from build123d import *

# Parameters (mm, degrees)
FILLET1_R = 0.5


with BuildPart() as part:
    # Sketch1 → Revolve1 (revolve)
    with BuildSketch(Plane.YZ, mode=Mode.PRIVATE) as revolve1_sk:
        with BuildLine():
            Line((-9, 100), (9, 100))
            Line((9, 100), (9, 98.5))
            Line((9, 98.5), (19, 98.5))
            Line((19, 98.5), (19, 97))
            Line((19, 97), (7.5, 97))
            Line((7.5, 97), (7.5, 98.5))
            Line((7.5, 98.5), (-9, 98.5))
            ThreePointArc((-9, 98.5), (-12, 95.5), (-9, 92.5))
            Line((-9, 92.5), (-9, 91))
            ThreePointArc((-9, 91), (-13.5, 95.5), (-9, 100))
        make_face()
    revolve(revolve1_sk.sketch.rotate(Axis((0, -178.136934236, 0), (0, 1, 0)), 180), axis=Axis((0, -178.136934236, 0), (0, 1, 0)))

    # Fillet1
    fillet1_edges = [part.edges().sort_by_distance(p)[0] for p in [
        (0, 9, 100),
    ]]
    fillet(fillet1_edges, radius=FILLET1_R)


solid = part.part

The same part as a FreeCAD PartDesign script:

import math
import FreeCAD as App
import Part
import Sketcher
Q = App.Units.Quantity


def edges_at(feature, points):
    """Names of the edges that pass closest to the given points."""
    edges = feature.Shape.Edges
    near = lambda p: min(range(len(edges)), key=lambda i: edges[i].distToShape(Part.Vertex(*p))[0])
    return sorted({f"Edge{near(p) + 1}" for p in points})

doc = App.newDocument("Part")
body = doc.addObject("PartDesign::Body", "Body")

sketch1 = doc.addObject("Sketcher::SketchObject", "Sketch")
body.addObject(sketch1)
sketch1.AttachmentSupport = (doc.YZ_Plane, [""])
sketch1.MapMode = "FlatFace"
sketch1.addGeometry([
    Part.LineSegment(App.Vector(9, 100, 0), App.Vector(-9, 100, 0)),
    Part.ArcOfCircle(Part.Circle(App.Vector(-9, 95.5, 0), App.Vector(0, 0, 1), 4.5), math.radians(90), math.radians(270)),
    Part.LineSegment(App.Vector(-9, 91, 0), App.Vector(-9, 92.5, 0)),
    Part.ArcOfCircle(Part.Circle(App.Vector(-9, 95.5, 0), App.Vector(0, 0, 1), 3), math.radians(90), math.radians(270)),
    Part.LineSegment(App.Vector(-9, 98.5, 0), App.Vector(7.5, 98.5, 0)),
    Part.LineSegment(App.Vector(7.5, 98.5, 0), App.Vector(7.5, 97, 0)),
    Part.LineSegment(App.Vector(7.5, 97, 0), App.Vector(19, 97, 0)),
    Part.LineSegment(App.Vector(19, 97, 0), App.Vector(19, 98.5, 0)),
    Part.LineSegment(App.Vector(19, 98.5, 0), App.Vector(9, 98.5, 0)),
    Part.LineSegment(App.Vector(9, 98.5, 0), App.Vector(9, 100, 0)),
], False)
sketch1.addConstraint([
    Sketcher.Constraint("Tangent", 0, 2, 1, 1),
    Sketcher.Constraint("Coincident", 1, 2, 2, 1),
    Sketcher.Constraint("Coincident", 2, 2, 3, 2),
    Sketcher.Constraint("Tangent", 3, 1, 4, 1),
    Sketcher.Constraint("Coincident", 4, 2, 5, 1),
    Sketcher.Constraint("Coincident", 5, 2, 6, 1),
    Sketcher.Constraint("Coincident", 6, 2, 7, 1),
    Sketcher.Constraint("Coincident", 7, 2, 8, 1),
    Sketcher.Constraint("Coincident", 8, 2, 9, 1),
    Sketcher.Constraint("Coincident", 9, 2, 0, 1),
    Sketcher.Constraint("Horizontal", 0),
    Sketcher.Constraint("Vertical", 2),
    Sketcher.Constraint("Horizontal", 4),
    Sketcher.Constraint("Vertical", 5),
    Sketcher.Constraint("Horizontal", 6),
    Sketcher.Constraint("Vertical", 7),
    Sketcher.Constraint("Horizontal", 8),
    Sketcher.Constraint("Vertical", 9),
    Sketcher.Constraint("Coincident", 3, 3, 1, 3),
    Sketcher.Constraint("Symmetric", 3, 1, 8, 2, -2),
    Sketcher.Constraint("Vertical", 0, 2, 1, 2),
    Sketcher.Constraint("Equal", 2, 5),
    Sketcher.Constraint("Radius", 3, Q("3 mm")),
    Sketcher.Constraint("Radius", 1, Q("4.5 mm")),
    Sketcher.Constraint("DistanceX", 0, 2, 0, 1, Q("18 mm")),
    Sketcher.Constraint("DistanceX", 8, 2, 8, 1, Q("10 mm")),
    Sketcher.Constraint("DistanceX", 4, 1, 4, 2, Q("16.5 mm")),
    Sketcher.Constraint("DistanceY", -1, 1, 0, 2, Q("100 mm")),
])
revolution = doc.addObject("PartDesign::Revolution", "Revolution")
body.addObject(revolution)
revolution.Profile = sketch1
revolution.ReferenceAxis = (sketch1, ["H_Axis"])
revolution.Angle = 360
doc.recompute()

fillet = doc.addObject("PartDesign::Fillet", "Fillet")
body.addObject(fillet)
fillet.Base = (revolution, edges_at(revolution, [(0, 9, 100)]))
fillet.Radius = 0.5

doc.recompute()
